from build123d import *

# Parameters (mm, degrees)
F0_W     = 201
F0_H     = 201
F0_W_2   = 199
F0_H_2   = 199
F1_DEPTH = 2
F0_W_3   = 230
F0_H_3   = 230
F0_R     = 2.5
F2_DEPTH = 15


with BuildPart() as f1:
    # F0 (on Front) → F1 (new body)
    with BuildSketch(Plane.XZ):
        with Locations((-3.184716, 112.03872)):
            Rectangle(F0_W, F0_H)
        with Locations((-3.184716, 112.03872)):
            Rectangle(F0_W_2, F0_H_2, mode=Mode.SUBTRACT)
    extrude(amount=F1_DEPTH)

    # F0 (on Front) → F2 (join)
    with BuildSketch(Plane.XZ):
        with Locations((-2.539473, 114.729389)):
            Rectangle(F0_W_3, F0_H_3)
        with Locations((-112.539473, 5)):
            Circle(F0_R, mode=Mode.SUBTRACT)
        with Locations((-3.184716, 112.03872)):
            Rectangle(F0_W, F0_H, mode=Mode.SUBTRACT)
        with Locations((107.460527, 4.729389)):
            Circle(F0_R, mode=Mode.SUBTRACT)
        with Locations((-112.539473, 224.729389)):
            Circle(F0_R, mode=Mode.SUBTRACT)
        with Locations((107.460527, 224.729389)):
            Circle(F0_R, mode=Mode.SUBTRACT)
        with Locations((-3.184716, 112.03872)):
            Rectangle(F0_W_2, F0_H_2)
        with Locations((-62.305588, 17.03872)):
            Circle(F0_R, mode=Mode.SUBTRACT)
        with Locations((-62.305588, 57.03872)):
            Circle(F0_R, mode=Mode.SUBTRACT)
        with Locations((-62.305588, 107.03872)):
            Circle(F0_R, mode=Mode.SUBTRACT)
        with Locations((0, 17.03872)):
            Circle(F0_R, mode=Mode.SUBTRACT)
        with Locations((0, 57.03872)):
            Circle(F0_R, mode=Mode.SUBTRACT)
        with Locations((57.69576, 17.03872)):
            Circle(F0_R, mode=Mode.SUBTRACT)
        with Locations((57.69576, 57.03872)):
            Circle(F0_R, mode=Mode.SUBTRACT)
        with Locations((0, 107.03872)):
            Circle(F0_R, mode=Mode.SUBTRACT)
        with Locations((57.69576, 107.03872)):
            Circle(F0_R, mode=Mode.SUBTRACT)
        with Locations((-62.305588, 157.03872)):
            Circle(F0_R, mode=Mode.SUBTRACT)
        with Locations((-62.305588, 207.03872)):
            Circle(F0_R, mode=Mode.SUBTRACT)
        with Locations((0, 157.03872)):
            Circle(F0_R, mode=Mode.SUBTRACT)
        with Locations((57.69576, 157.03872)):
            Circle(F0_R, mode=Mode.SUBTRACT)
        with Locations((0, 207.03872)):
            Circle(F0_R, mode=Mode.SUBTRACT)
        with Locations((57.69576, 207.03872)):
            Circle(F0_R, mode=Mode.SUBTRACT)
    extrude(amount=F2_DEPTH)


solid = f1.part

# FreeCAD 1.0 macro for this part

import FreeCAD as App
import Part
import Sketcher
Q = App.Units.Quantity

doc = App.newDocument("Part")
body = doc.addObject("PartDesign::Body", "Body")

sketch1 = body.newObject("Sketcher::SketchObject", "Sketch")
sketch1.AttachmentSupport = (doc.getObject("XZ_Plane"), [""])
sketch1.MapMode = "FlatFace"
sketch1.addGeometry([
    Part.LineSegment(App.Vector(-104, 213, 0), App.Vector(-104, 12, 0)),
    Part.LineSegment(App.Vector(-104, 12, 0), App.Vector(97, 12, 0)),
    Part.LineSegment(App.Vector(97, 12, 0), App.Vector(97, 213, 0)),
    Part.LineSegment(App.Vector(97, 213, 0), App.Vector(-104, 213, 0)),
    Part.LineSegment(App.Vector(96, 13, 0), App.Vector(-103, 13, 0)),
    Part.LineSegment(App.Vector(-103, 13, 0), App.Vector(-103, 212, 0)),
    Part.LineSegment(App.Vector(-103, 212, 0), App.Vector(96, 212, 0)),
    Part.LineSegment(App.Vector(96, 212, 0), App.Vector(96, 13, 0)),
], False)
sketch1.addConstraint([
    Sketcher.Constraint("Coincident", 0, 2, 1, 1),
    Sketcher.Constraint("Coincident", 1, 2, 2, 1),
    Sketcher.Constraint("Coincident", 2, 2, 3, 1),
    Sketcher.Constraint("Coincident", 3, 2, 0, 1),
    Sketcher.Constraint("Coincident", 4, 2, 5, 1),
    Sketcher.Constraint("Coincident", 5, 2, 6, 1),
    Sketcher.Constraint("Coincident", 6, 2, 7, 1),
    Sketcher.Constraint("Coincident", 7, 2, 4, 1),
    Sketcher.Constraint("Vertical", 0),
    Sketcher.Constraint("Horizontal", 1),
    Sketcher.Constraint("Vertical", 2),
    Sketcher.Constraint("Horizontal", 3),
    Sketcher.Constraint("Horizontal", 4),
    Sketcher.Constraint("Vertical", 5),
    Sketcher.Constraint("Horizontal", 6),
    Sketcher.Constraint("Vertical", 7),
    Sketcher.Constraint("Equal", 3, 0),
    Sketcher.Constraint("Equal", 6, 5),
    Sketcher.Constraint("DistanceX", 1, 1, 1, 2, Q("201 mm")),
    Sketcher.Constraint("DistanceX", 4, 2, 4, 1, Q("199 mm")),
    Sketcher.Constraint("DistanceX", 0, 2, 4, 2, Q("1 mm")),
    Sketcher.Constraint("DistanceY", 0, 2, 4, 2, Q("1 mm")),
    Sketcher.Constraint("DistanceY", -1, 1, 0, 2, Q("11.53872 mm")),
    Sketcher.Constraint("DistanceX", 0, 2, -1, 1, Q("103.684716 mm")),
])
pad1 = body.newObject("PartDesign::Pad", "Pad")
pad1.Profile = sketch1
pad1.Length = 2

sketch2 = body.newObject("Sketcher::SketchObject", "Sketch001")
sketch2.AttachmentSupport = (doc.getObject("XZ_Plane"), [""])
sketch2.MapMode = "FlatFace"
sketch2.addGeometry([
    Part.LineSegment(App.Vector(-117.5, 229.7, 0), App.Vector(-117.5, -0.3, 0)),
    Part.LineSegment(App.Vector(-117.5, -0.3, 0), App.Vector(112.5, -0.3, 0)),
    Part.LineSegment(App.Vector(112.5, -0.3, 0), App.Vector(112.5, 229.7, 0)),
    Part.LineSegment(App.Vector(112.5, 229.7, 0), App.Vector(-117.5, 229.7, 0)),
    Part.Circle(App.Vector(-112.5, 5, 0), App.Vector(0, 0, 1), 2.5),
    Part.LineSegment(App.Vector(97.3, 11.5, 0), App.Vector(-103.7, 11.5, 0)),
    Part.LineSegment(App.Vector(-103.7, 11.5, 0), App.Vector(-103.7, 212.5, 0)),
    Part.LineSegment(App.Vector(-103.7, 212.5, 0), App.Vector(97.3, 212.5, 0)),
    Part.LineSegment(App.Vector(97.3, 212.5, 0), App.Vector(97.3, 11.5, 0)),
    Part.Circle(App.Vector(107.5, 4.7, 0), App.Vector(0, 0, 1), 2.5),
    Part.Circle(App.Vector(-112.5, 224.7, 0), App.Vector(0, 0, 1), 2.5),
    Part.Circle(App.Vector(107.5, 224.7, 0), App.Vector(0, 0, 1), 2.5),
    Part.LineSegment(App.Vector(-102.7, 211.5, 0), App.Vector(-102.7, 12.5, 0)),
    Part.LineSegment(App.Vector(-102.7, 12.5, 0), App.Vector(96.3, 12.5, 0)),
    Part.LineSegment(App.Vector(96.3, 12.5, 0), App.Vector(96.3, 211.5, 0)),
    Part.LineSegment(App.Vector(96.3, 211.5, 0), App.Vector(-102.7, 211.5, 0)),
    Part.Circle(App.Vector(-62.3, 17, 0), App.Vector(0, 0, 1), 2.5),
    Part.Circle(App.Vector(-62.3, 57, 0), App.Vector(0, 0, 1), 2.5),
    Part.Circle(App.Vector(-62.3, 107, 0), App.Vector(0, 0, 1), 2.5),
    Part.Circle(App.Vector(0, 17, 0), App.Vector(0, 0, 1), 2.5),
    Part.Circle(App.Vector(0, 57, 0), App.Vector(0, 0, 1), 2.5),
    Part.Circle(App.Vector(57.7, 17, 0), App.Vector(0, 0, 1), 2.5),
    Part.Circle(App.Vector(57.7, 57, 0), App.Vector(0, 0, 1), 2.5),
    Part.Circle(App.Vector(0, 107, 0), App.Vector(0, 0, 1), 2.5),
    Part.Circle(App.Vector(57.7, 107, 0), App.Vector(0, 0, 1), 2.5),
    Part.Circle(App.Vector(-62.3, 157, 0), App.Vector(0, 0, 1), 2.5),
    Part.Circle(App.Vector(-62.3, 207, 0), App.Vector(0, 0, 1), 2.5),
    Part.Circle(App.Vector(0, 157, 0), App.Vector(0, 0, 1), 2.5),
    Part.Circle(App.Vector(57.7, 157, 0), App.Vector(0, 0, 1), 2.5),
    Part.Circle(App.Vector(0, 207, 0), App.Vector(0, 0, 1), 2.5),
    Part.Circle(App.Vector(57.7, 207, 0), App.Vector(0, 0, 1), 2.5),
], False)
sketch2.addConstraint([
    Sketcher.Constraint("Coincident", 0, 2, 1, 1),
    Sketcher.Constraint("Coincident", 1, 2, 2, 1),
    Sketcher.Constraint("Coincident", 2, 2, 3, 1),
    Sketcher.Constraint("Coincident", 3, 2, 0, 1),
    Sketcher.Constraint("Coincident", 5, 2, 6, 1),
    Sketcher.Constraint("Coincident", 6, 2, 7, 1),
    Sketcher.Constraint("Coincident", 7, 2, 8, 1),
    Sketcher.Constraint("Coincident", 8, 2, 5, 1),
    Sketcher.Constraint("Coincident", 12, 2, 13, 1),
    Sketcher.Constraint("Coincident", 13, 2, 14, 1),
    Sketcher.Constraint("Coincident", 14, 2, 15, 1),
    Sketcher.Constraint("Coincident", 15, 2, 12, 1),
    Sketcher.Constraint("Vertical", 0),
    Sketcher.Constraint("Horizontal", 1),
    Sketcher.Constraint("Vertical", 2),
    Sketcher.Constraint("Horizontal", 3),
    Sketcher.Constraint("Horizontal", 5),
    Sketcher.Constraint("Vertical", 6),
    Sketcher.Constraint("Horizontal", 7),
    Sketcher.Constraint("Vertical", 8),
    Sketcher.Constraint("Vertical", 12),
    Sketcher.Constraint("Horizontal", 13),
    Sketcher.Constraint("Vertical", 14),
    Sketcher.Constraint("Horizontal", 15),
    Sketcher.Constraint("Equal", 4, 9),
    Sketcher.Constraint("Equal", 9, 10),
    Sketcher.Constraint("Equal", 10, 11),
    Sketcher.Constraint("Equal", 11, 16),
    Sketcher.Constraint("Equal", 16, 17),
    Sketcher.Constraint("Equal", 17, 18),
    Sketcher.Constraint("Equal", 18, 19),
    Sketcher.Constraint("Equal", 19, 20),
    Sketcher.Constraint("Equal", 20, 21),
    Sketcher.Constraint("Equal", 21, 22),
    Sketcher.Constraint("Equal", 22, 23),
    Sketcher.Constraint("Equal", 23, 24),
    Sketcher.Constraint("Equal", 24, 25),
    Sketcher.Constraint("Equal", 25, 26),
    Sketcher.Constraint("Equal", 26, 27),
    Sketcher.Constraint("Equal", 27, 28),
    Sketcher.Constraint("Equal", 28, 29),
    Sketcher.Constraint("Equal", 29, 30),
    Sketcher.Constraint("PointOnObject", 19, 3, -2),
    Sketcher.Constraint("PointOnObject", 20, 3, -2),
    Sketcher.Constraint("PointOnObject", 23, 3, -2),
    Sketcher.Constraint("PointOnObject", 27, 3, -2),
    Sketcher.Constraint("PointOnObject", 29, 3, -2),
    Sketcher.Constraint("Horizontal", 10, 3, 11, 3),
    Sketcher.Constraint("Horizontal", 16, 3, 19, 3),
    Sketcher.Constraint("Horizontal", 17, 3, 20, 3),
    Sketcher.Constraint("Horizontal", 19, 3, 21, 3),
    Sketcher.Constraint("Horizontal", 20, 3, 22, 3),
    Sketcher.Constraint("Horizontal", 18, 3, 23, 3),
    Sketcher.Constraint("Horizontal", 23, 3, 24, 3),
    Sketcher.Constraint("Horizontal", 25, 3, 27, 3),
    Sketcher.Constraint("Horizontal", 27, 3, 28, 3),
    Sketcher.Constraint("Horizontal", 26, 3, 29, 3),
    Sketcher.Constraint("Horizontal", 29, 3, 30, 3),
    Sketcher.Constraint("Vertical", 4, 3, 10, 3),
    Sketcher.Constraint("Vertical", 9, 3, 11, 3),
    Sketcher.Constraint("Vertical", 16, 3, 17, 3),
    Sketcher.Constraint("Vertical", 17, 3, 18, 3),
    Sketcher.Constraint("Vertical", 21, 3, 22, 3),
    Sketcher.Constraint("Vertical", 22, 3, 24, 3),
    Sketcher.Constraint("Vertical", 18, 3, 25, 3),
    Sketcher.Constraint("Vertical", 25, 3, 26, 3),
    Sketcher.Constraint("Vertical", 24, 3, 28, 3),
    Sketcher.Constraint("Vertical", 28, 3, 30, 3),
    Sketcher.Constraint("Equal", 3, 0),
    Sketcher.Constraint("Equal", 7, 6),
    Sketcher.Constraint("Equal", 15, 12),
    Sketcher.Constraint("Diameter", 4, Q("5 mm")),
    Sketcher.Constraint("DistanceX", 1, 1, 1, 2, Q("230 mm")),
    Sketcher.Constraint("DistanceX", 5, 2, 5, 1, Q("201 mm")),
    Sketcher.Constraint("DistanceX", 13, 1, 13, 2, Q("199 mm")),
    Sketcher.Constraint("DistanceY", -1, 1, 4, 3, Q("5 mm")),
    Sketcher.Constraint("DistanceX", 4, 3, 9, 3, Q("220 mm")),
    Sketcher.Constraint("DistanceY", 9, 3, 10, 3, Q("220 mm")),
    Sketcher.Constraint("DistanceY", 16, 3, 17, 3, Q("40 mm")),
    Sketcher.Constraint("DistanceY", 17, 3, 18, 3, Q("50 mm")),
    Sketcher.Constraint("DistanceY", 18, 3, 25, 3, Q("50 mm")),
    Sketcher.Constraint("DistanceY", 25, 3, 26, 3, Q("50 mm")),
    Sketcher.Constraint("DistanceX", 0, 2, 4, 3, Q("5 mm")),
    Sketcher.Constraint("DistanceY", 1, 2, 9, 3, Q("5 mm")),
    Sketcher.Constraint("DistanceX", 5, 2, 12, 2, Q("1 mm")),
    Sketcher.Constraint("DistanceY", 5, 2, 12, 2, Q("1 mm")),
    Sketcher.Constraint("DistanceY", 5, 2, 16, 3, Q("5.5 mm")),
    Sketcher.Constraint("DistanceY", -1, 1, 9, 3, Q("4.729389 mm")),
    Sketcher.Constraint("DistanceY", -1, 1, 16, 3, Q("17.03872 mm")),
    Sketcher.Constraint("DistanceX", -1, 1, 21, 3, Q("57.69576 mm")),
    Sketcher.Constraint("DistanceX", 16, 3, 21, 3, Q("120.001348 mm")),
    Sketcher.Constraint("DistanceX", 4, 3, -1, 1, Q("112.539473 mm")),
    Sketcher.Constraint("DistanceX", 5, 2, -1, 1, Q("103.684716 mm")),
])
pad2 = body.newObject("PartDesign::Pad", "Pad001")
pad2.Profile = sketch2
pad2.Length = 15

doc.recompute()
